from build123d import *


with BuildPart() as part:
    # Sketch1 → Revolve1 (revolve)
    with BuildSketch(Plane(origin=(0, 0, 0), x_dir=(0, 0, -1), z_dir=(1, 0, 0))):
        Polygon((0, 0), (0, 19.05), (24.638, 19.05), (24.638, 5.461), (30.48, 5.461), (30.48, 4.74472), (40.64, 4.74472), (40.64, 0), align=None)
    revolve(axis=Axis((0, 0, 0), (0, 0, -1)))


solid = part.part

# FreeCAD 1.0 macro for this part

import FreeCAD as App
import Part
import Sketcher
Q = App.Units.Quantity

doc = App.newDocument("Part")
body = doc.addObject("PartDesign::Body", "Body")

sketch1 = body.newObject("Sketcher::SketchObject", "Sketch")
sketch1.AttachmentSupport = (doc.getObject("YZ_Plane"), [""])
sketch1.MapMode = "FlatFace"
sketch1.addGeometry([
    Part.LineSegment(App.Vector(19.05, 0, 0), App.Vector(0, 0, 0)),
    Part.LineSegment(App.Vector(0, 0, 0), App.Vector(0, -40.64, 0)),
    Part.LineSegment(App.Vector(0, -40.64, 0), App.Vector(4.74472, -40.64, 0)),
    Part.LineSegment(App.Vector(4.74472, -40.64, 0), App.Vector(4.74472, -30.48, 0)),
    Part.LineSegment(App.Vector(4.74472, -30.48, 0), App.Vector(5.461, -30.48, 0)),
    Part.LineSegment(App.Vector(5.461, -30.48, 0), App.Vector(5.461, -24.638, 0)),
    Part.LineSegment(App.Vector(5.461, -24.638, 0), App.Vector(19.05, -24.638, 0)),
    Part.LineSegment(App.Vector(19.05, -24.638, 0), App.Vector(19.05, 0, 0)),
], False)
sketch1.addConstraint([
    Sketcher.Constraint("Coincident", 0, 2, 1, 1),
    Sketcher.Constraint("Coincident", 1, 2, 2, 1),
    Sketcher.Constraint("Coincident", 2, 2, 3, 1),
    Sketcher.Constraint("Coincident", 3, 2, 4, 1),
    Sketcher.Constraint("Coincident", 4, 2, 5, 1),
    Sketcher.Constraint("Coincident", 5, 2, 6, 1),
    Sketcher.Constraint("Coincident", 6, 2, 7, 1),
    Sketcher.Constraint("Coincident", 7, 2, 0, 1),
    Sketcher.Constraint("Horizontal", 0),
    Sketcher.Constraint("Vertical", 1),
    Sketcher.Constraint("Horizontal", 2),
    Sketcher.Constraint("Vertical", 3),
    Sketcher.Constraint("Horizontal", 4),
    Sketcher.Constraint("Vertical", 5),
    Sketcher.Constraint("Horizontal", 6),
    Sketcher.Constraint("Vertical", 7),
    Sketcher.Constraint("Coincident", 0, 2, -1, 1),
    Sketcher.Constraint("DistanceY", 1, 2, 1, 1, Q("1.6 in")),
    Sketcher.Constraint("DistanceY", 3, 1, 3, 2, Q("0.4 in")),
    Sketcher.Constraint("DistanceX", 0, 2, 0, 1, Q("0.75 in")),
    Sketcher.Constraint("DistanceY", 5, 1, 5, 2, Q("0.23 in")),
    Sketcher.Constraint("DistanceX", 6, 1, 6, 2, Q("0.535 in")),
    Sketcher.Constraint("DistanceX", 2, 1, 2, 2, Q("0.1868 in")),
])
revolution = body.newObject("PartDesign::Revolution", "Revolution")
revolution.Profile = sketch1
revolution.ReferenceAxis = (sketch1, ["V_Axis"])
revolution.Angle = 360

doc.recompute()
